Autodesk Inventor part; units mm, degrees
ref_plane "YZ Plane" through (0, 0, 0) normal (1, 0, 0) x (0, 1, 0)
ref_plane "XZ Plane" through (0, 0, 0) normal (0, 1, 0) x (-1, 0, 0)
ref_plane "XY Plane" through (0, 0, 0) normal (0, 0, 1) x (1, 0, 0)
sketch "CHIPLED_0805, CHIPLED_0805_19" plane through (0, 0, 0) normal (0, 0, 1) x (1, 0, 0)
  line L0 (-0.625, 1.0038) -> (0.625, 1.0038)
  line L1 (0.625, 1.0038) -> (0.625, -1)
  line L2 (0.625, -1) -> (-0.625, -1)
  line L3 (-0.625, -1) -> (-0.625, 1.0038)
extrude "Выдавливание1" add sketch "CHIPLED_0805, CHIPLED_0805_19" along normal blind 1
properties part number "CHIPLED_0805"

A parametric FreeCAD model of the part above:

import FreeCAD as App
import Part
import Sketcher

doc = App.newDocument("Part")
params = doc.addObject("Spreadsheet::Sheet", "Params")
for row, (alias, value) in enumerate([
    ("sketch1_width", "1.25 mm"),
    ("pad1_length", "1 mm"),
], start=1):
    params.set(f"A{row}", alias)
    params.set(f"B{row}", "=" + value)
    params.setAlias(f"B{row}", alias)

body = doc.addObject("PartDesign::Body", "Body")

# Sketch on XY plane
sketch1 = doc.addObject("Sketcher::SketchObject", "Sketch")
body.addObject(sketch1)
sketch1.AttachmentSupport = (doc.XY_Plane, [""])
sketch1.MapMode = "FlatFace"
sketch1.addGeometry([
    Part.LineSegment(App.Vector(0.625, 1.0038, 0), App.Vector(-0.625, 1.0038, 0)),
    Part.LineSegment(App.Vector(-0.625, 1.0038, 0), App.Vector(-0.625, -1, 0)),
    Part.LineSegment(App.Vector(-0.625, -1, 0), App.Vector(0.625, -1, 0)),
    Part.LineSegment(App.Vector(0.625, -1, 0), App.Vector(0.625, 1.0038, 0)),
], False)
sketch1.addConstraint([
    Sketcher.Constraint("Coincident", 0, 2, 1, 1),
    Sketcher.Constraint("Coincident", 1, 2, 2, 1),
    Sketcher.Constraint("Coincident", 2, 2, 3, 1),
    Sketcher.Constraint("Coincident", 3, 2, 0, 1),
    Sketcher.Constraint("Horizontal", 0),
    Sketcher.Constraint("Vertical", 1),
    Sketcher.Constraint("Horizontal", 2),
    Sketcher.Constraint("Vertical", 3),
    Sketcher.Constraint("DistanceY", 1, 2, -1, 1, 1.0),
    Sketcher.Constraint("DistanceX", 0, 2, 0, 1, 1.25),
    Sketcher.Constraint("DistanceY", 1, 2, 1, 1, 2.0038),
    Sketcher.Constraint("DistanceX", 0, 2, -1, 1, 0.625),
])
sketch1.setExpression("Constraints[9]", "Params.sketch1_width")
pad1 = doc.addObject("PartDesign::Pad", "Pad")
body.addObject(pad1)
pad1.Profile = sketch1
pad1.setExpression("Length", "Params.pad1_length")

doc.recompute()
